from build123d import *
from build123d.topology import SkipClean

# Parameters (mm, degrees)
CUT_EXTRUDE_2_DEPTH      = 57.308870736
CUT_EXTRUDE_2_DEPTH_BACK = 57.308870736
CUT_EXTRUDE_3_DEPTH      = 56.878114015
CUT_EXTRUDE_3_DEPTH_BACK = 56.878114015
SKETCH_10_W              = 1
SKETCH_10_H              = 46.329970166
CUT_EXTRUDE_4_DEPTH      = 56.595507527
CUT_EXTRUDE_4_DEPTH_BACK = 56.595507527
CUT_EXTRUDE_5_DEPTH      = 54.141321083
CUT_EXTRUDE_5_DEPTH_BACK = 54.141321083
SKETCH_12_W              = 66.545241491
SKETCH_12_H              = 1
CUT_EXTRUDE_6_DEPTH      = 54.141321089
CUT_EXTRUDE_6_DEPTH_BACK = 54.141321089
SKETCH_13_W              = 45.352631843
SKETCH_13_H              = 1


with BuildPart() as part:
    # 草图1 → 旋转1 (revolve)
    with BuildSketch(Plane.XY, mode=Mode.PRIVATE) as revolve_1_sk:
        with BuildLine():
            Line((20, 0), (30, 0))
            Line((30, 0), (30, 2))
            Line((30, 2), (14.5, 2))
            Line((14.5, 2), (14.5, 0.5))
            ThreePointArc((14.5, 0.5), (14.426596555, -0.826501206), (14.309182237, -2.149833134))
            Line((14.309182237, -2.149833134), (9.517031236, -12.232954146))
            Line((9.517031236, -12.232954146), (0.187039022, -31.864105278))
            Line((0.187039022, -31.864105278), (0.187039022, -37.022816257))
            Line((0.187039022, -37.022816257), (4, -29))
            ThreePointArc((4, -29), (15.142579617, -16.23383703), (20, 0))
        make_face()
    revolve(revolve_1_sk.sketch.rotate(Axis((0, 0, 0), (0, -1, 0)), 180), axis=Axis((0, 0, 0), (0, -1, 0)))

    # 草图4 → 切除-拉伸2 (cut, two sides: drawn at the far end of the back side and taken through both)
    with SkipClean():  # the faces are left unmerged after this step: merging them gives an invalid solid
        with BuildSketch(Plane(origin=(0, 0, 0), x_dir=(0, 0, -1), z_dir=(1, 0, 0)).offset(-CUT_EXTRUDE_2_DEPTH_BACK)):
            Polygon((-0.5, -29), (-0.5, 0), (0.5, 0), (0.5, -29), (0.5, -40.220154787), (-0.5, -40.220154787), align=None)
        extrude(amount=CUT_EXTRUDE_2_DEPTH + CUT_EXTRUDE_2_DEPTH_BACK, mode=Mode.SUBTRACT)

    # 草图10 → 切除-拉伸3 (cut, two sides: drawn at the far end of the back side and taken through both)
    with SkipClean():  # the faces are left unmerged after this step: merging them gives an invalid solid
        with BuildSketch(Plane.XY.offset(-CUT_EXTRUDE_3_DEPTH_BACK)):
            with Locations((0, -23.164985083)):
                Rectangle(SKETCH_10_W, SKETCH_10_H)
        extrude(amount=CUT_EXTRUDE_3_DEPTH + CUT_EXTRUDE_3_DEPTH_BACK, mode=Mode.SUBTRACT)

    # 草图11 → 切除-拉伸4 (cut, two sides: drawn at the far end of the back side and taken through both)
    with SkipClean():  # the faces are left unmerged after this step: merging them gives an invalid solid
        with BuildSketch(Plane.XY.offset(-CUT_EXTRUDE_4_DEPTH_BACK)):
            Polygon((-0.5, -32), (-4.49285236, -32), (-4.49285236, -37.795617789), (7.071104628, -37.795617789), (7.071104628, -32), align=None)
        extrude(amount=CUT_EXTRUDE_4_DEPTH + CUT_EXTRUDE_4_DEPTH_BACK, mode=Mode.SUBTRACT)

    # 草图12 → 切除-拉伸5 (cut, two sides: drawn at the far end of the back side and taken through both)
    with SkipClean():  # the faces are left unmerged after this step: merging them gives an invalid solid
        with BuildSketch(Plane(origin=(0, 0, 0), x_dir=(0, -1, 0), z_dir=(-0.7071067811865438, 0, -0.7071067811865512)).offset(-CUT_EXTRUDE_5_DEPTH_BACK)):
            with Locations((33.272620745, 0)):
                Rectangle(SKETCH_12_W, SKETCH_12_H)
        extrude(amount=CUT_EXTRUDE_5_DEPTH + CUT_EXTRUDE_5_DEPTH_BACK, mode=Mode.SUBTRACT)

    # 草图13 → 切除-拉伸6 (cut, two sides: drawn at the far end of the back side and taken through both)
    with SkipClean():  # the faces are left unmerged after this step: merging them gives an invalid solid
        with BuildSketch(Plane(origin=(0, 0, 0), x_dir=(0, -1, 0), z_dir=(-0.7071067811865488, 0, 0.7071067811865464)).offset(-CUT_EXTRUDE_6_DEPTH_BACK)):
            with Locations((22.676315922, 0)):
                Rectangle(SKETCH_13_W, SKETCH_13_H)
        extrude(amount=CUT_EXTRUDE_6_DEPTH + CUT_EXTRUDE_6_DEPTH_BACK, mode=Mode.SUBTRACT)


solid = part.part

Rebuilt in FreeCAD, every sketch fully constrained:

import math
import FreeCAD as App
import Part
import Sketcher
from FreeCAD import Vector
Q = App.Units.Quantity


def add_polygon(sketch, points):
    """Adds a closed chain of lines whose ends are joined by coincident constraints."""
    first, n = sketch.GeometryCount, len(points)
    for a, b in zip(points, points[1:] + points[:1]):
        sketch.addGeometry(Part.LineSegment(App.Vector(*a, 0), App.Vector(*b, 0)), False)
    for i in range(n):
        sketch.addConstraint(Sketcher.Constraint("Coincident", first + i, 2, first + (i + 1) % n, 1))

doc = App.newDocument("Part")
params = doc.addObject("Spreadsheet::Sheet", "Params")
for row, (alias, value) in enumerate([
    ("sketch1_radius", "40.000001 mm"),
    ("sketch1_width", "10 mm"),
    ("sketch1_height", "2 mm"),
    ("sketch1_width2", "15.5 mm"),
    ("sketch1_height2", "1.5 mm"),
    ("revolution_angle", "360 deg"),
    ("sketch2_height", "1 mm"),
    ("sketch3_width", "1 mm"),
    ("sketch5_height", "1 mm"),
    ("sketch6_height", "1 mm"),
], start=1):
    params.set(f"A{row}", alias)
    params.set(f"B{row}", "=" + value)
    params.setAlias(f"B{row}", alias)

body = doc.addObject("PartDesign::Body", "Body")

# Sketch on XY plane
sketch1 = doc.addObject("Sketcher::SketchObject", "Sketch")
body.addObject(sketch1)
sketch1.AttachmentSupport = (doc.XY_Plane, [""])
sketch1.MapMode = "FlatFace"
sketch1.addGeometry([
    Part.LineSegment(Vector(20, 0, 0), Vector(30, 0, 0)),  # 0
    Part.LineSegment(Vector(30, 0, 0), Vector(30, 2, 0)),  # 1
    Part.LineSegment(Vector(30, 2, 0), Vector(14.5, 2, 0)),  # 2
    Part.LineSegment(Vector(14.5, 2, 0), Vector(14.5, 0.5, 0)),  # 3
    Part.ArcOfCircle(Part.Circle(Vector(-25.5, 2, 0), Vector(0, 0, 1), 40), math.radians(-6.02), math.radians(-2.22)),  # 4
    Part.LineSegment(Vector(14.3, -2.1, 0), Vector(9.5, -12.2, 0)),  # 5
    Part.LineSegment(Vector(9.5, -12.2, 0), Vector(0.2, -31.9, 0)),  # 6
    Part.LineSegment(Vector(0.2, -31.9, 0), Vector(0.2, -37, 0)),  # 7
    Part.LineSegment(Vector(0.2, -37, 0), Vector(4, -29, 0)),  # 8
    Part.ArcOfCircle(Part.Circle(Vector(-19.9, 3.1, 0), Vector(0, 0, 1), 40), math.radians(-53), math.radians(-4)),  # 9
], False)
sketch1.addConstraint([
    Sketcher.Constraint("Coincident", 0, 2, 1, 1),
    Sketcher.Constraint("Coincident", 1, 2, 2, 1),
    Sketcher.Constraint("Coincident", 2, 2, 3, 1),
    Sketcher.Constraint("Coincident", 3, 2, 4, 2),
    Sketcher.Constraint("Coincident", 4, 1, 5, 1),
    Sketcher.Constraint("Coincident", 5, 2, 6, 1),
    Sketcher.Constraint("Coincident", 6, 2, 7, 1),
    Sketcher.Constraint("Coincident", 7, 2, 8, 1),
    Sketcher.Constraint("Coincident", 8, 2, 9, 1),
    Sketcher.Constraint("Coincident", 9, 2, 0, 1),
    Sketcher.Constraint("Horizontal", 0),
    Sketcher.Constraint("Vertical", 1),
    Sketcher.Constraint("Horizontal", 2),
    Sketcher.Constraint("Vertical", 3),
    Sketcher.Constraint("Vertical", 7),
    Sketcher.Constraint("Equal", 4, 9),
    Sketcher.Constraint("PointOnObject", 0, 2, -1),
    Sketcher.Constraint("Parallel", 5, 6),
    Sketcher.Constraint("Parallel", 6, 8),
    Sketcher.Constraint("Radius", 4, Q("40.000001 mm")),
    Sketcher.Constraint("DistanceX", 0, 1, 0, 2, Q("10 mm")),
    Sketcher.Constraint("DistanceY", 1, 1, 1, 2, Q("2 mm")),
    Sketcher.Constraint("DistanceX", 2, 2, 2, 1, Q("15.5 mm")),
    Sketcher.Constraint("DistanceY", 3, 2, 3, 1, Q("1.5 mm")),
    Sketcher.Constraint("DistanceX", -1, 1, 0, 2, Q("30 mm")),
    Sketcher.Constraint("DistanceX", -1, 1, 8, 2, Q("4 mm")),
    Sketcher.Constraint("DistanceY", 8, 2, -1, 1, Q("29 mm")),
    Sketcher.Constraint("DistanceY", 7, 2, 7, 1, Q("5.158711 mm")),
    Sketcher.Constraint("Distance", 5, Q("11.163962 mm")),
    Sketcher.Constraint("DistanceY", -1, 1, 4, 3, Q("2.046509 mm")),
    Sketcher.Constraint("DistanceX", -1, 1, 5, 2, Q("9.517031 mm")),
    Sketcher.Constraint("DistanceX", -1, 1, 6, 2, Q("0.187039 mm")),
])
sketch1.setExpression("Constraints[19]", "Params.sketch1_radius")
sketch1.setExpression("Constraints[20]", "Params.sketch1_width")
sketch1.setExpression("Constraints[21]", "Params.sketch1_height")
sketch1.setExpression("Constraints[22]", "Params.sketch1_width2")
sketch1.setExpression("Constraints[23]", "Params.sketch1_height2")
revolution = doc.addObject("PartDesign::Revolution", "Revolution")
body.addObject(revolution)
revolution.Profile = sketch1
revolution.ReferenceAxis = (sketch1, ["V_Axis"])
revolution.setExpression("Angle", "Params.revolution_angle")

# Sketch on YZ plane
sketch2 = doc.addObject("Sketcher::SketchObject", "Sketch001")
body.addObject(sketch2)
sketch2.AttachmentSupport = (doc.YZ_Plane, [""])
sketch2.MapMode = "FlatFace"
add_polygon(sketch2, [(0, 0.5), (-40.2, 0.5), (-40.2, -0.5), (0, -0.5)])  # lines 0-3
sketch2.addConstraint([
    Sketcher.Constraint("Horizontal", 0),
    Sketcher.Constraint("Vertical", 1),
    Sketcher.Constraint("Horizontal", 2),
    Sketcher.Constraint("Vertical", 3),
    Sketcher.Constraint("Symmetric", 2, 2, 3, 2, -1, 1),
    Sketcher.Constraint("DistanceY", 1, 2, 1, 1, Q("1 mm")),
    Sketcher.Constraint("DistanceX", 0, 2, 0, 1, Q("40.220155 mm")),
])
sketch2.setExpression("Constraints[9]", "Params.sketch2_height")
pocket1 = doc.addObject("PartDesign::Pocket", "Pocket")
body.addObject(pocket1)
pocket1.Profile = sketch2
pocket1.Type = "ThroughAll"
pocket1.Midplane = True

# Sketch on XY plane
sketch3 = doc.addObject("Sketcher::SketchObject", "Sketch002")
body.addObject(sketch3)
sketch3.AttachmentSupport = (doc.XY_Plane, [""])
sketch3.MapMode = "FlatFace"
add_polygon(sketch3, [(-0.5, 0), (-0.5, -46.3), (0.5, -46.3), (0.5, 0)])  # lines 0-3
sketch3.addConstraint([
    Sketcher.Constraint("Vertical", 0),
    Sketcher.Constraint("Horizontal", 1),
    Sketcher.Constraint("Vertical", 2),
    Sketcher.Constraint("Horizontal", 3),
    Sketcher.Constraint("Symmetric", 2, 2, 3, 2, -1, 1),
    Sketcher.Constraint("DistanceX", 1, 1, 1, 2, Q("1 mm")),
    Sketcher.Constraint("DistanceY", 0, 2, 0, 1, Q("46.32997 mm")),
])
sketch3.setExpression("Constraints[9]", "Params.sketch3_width")
pocket2 = doc.addObject("PartDesign::Pocket", "Pocket001")
body.addObject(pocket2)
pocket2.Profile = sketch3
pocket2.Type = "ThroughAll"
pocket2.Midplane = True

# Sketch on XY plane
sketch4 = doc.addObject("Sketcher::SketchObject", "Sketch003")
body.addObject(sketch4)
sketch4.AttachmentSupport = (doc.XY_Plane, [""])
sketch4.MapMode = "FlatFace"
add_polygon(sketch4, [(-4, -32), (-4, -38), (7, -38), (7, -32)])  # lines 0-3
sketch4.addConstraint([
    Sketcher.Constraint("Vertical", 0),
    Sketcher.Constraint("Horizontal", 1),
    Sketcher.Constraint("Vertical", 2),
    Sketcher.Constraint("Horizontal", 3),
    Sketcher.Constraint("DistanceY", 2, 2, -1, 1, Q("32 mm")),
    Sketcher.Constraint("DistanceX", 1, 1, 1, 2, Q("11.563957 mm")),
    Sketcher.Constraint("DistanceY", 0, 2, 0, 1, Q("5.795618 mm")),
    Sketcher.Constraint("DistanceX", 0, 2, -1, 1, Q("4.492852 mm")),
])
pocket3 = doc.addObject("PartDesign::Pocket", "Pocket002")
body.addObject(pocket3)
pocket3.Profile = sketch4
pocket3.Type = "ThroughAll"
pocket3.Midplane = True

# Sketch on an angled plane
sketch5 = doc.addObject("Sketcher::SketchObject", "Sketch004")
body.addObject(sketch5)
sketch5.Placement = App.Placement(Vector(0, 0, 0), App.Rotation(Vector(0, -1, 0), Vector(-0.707106781, 0, 0.707106781), Vector(-0.707106781, 0, -0.707106781), "ZXY"))
add_polygon(sketch5, [(0, 0.5), (0, -0.5), (66.5, -0.5), (66.5, 0.5)])  # lines 0-3
sketch5.addConstraint([
    Sketcher.Constraint("Vertical", 0),
    Sketcher.Constraint("Horizontal", 1),
    Sketcher.Constraint("Vertical", 2),
    Sketcher.Constraint("Horizontal", 3),
    Sketcher.Constraint("Symmetric", 0, 2, 3, 2, -1, 1),
    Sketcher.Constraint("DistanceY", 0, 2, 0, 1, Q("1 mm")),
    Sketcher.Constraint("DistanceX", 1, 1, 1, 2, Q("66.545241 mm")),
])
sketch5.setExpression("Constraints[9]", "Params.sketch5_height")
pocket4 = doc.addObject("PartDesign::Pocket", "Pocket003")
body.addObject(pocket4)
pocket4.Profile = sketch5
pocket4.Type = "ThroughAll"
pocket4.Midplane = True

# Sketch on an angled plane
sketch6 = doc.addObject("Sketcher::SketchObject", "Sketch005")
body.addObject(sketch6)
sketch6.Placement = App.Placement(Vector(0, 0, 0), App.Rotation(Vector(0, -1, 0), Vector(0.707106781, 0, 0.707106781), Vector(-0.707106781, 0, 0.707106781), "ZXY"))
add_polygon(sketch6, [(0, 0.5), (0, -0.5), (45.4, -0.5), (45.4, 0.5)])  # lines 0-3
sketch6.addConstraint([
    Sketcher.Constraint("Vertical", 0),
    Sketcher.Constraint("Horizontal", 1),
    Sketcher.Constraint("Vertical", 2),
    Sketcher.Constraint("Horizontal", 3),
    Sketcher.Constraint("Symmetric", 0, 2, 3, 2, -1, 1),
    Sketcher.Constraint("DistanceY", 0, 2, 0, 1, Q("1 mm")),
    Sketcher.Constraint("DistanceX", 1, 1, 1, 2, Q("45.352632 mm")),
])
sketch6.setExpression("Constraints[9]", "Params.sketch6_height")
pocket5 = doc.addObject("PartDesign::Pocket", "Pocket004")
body.addObject(pocket5)
pocket5.Profile = sketch6
pocket5.Type = "ThroughAll"
pocket5.Midplane = True

doc.recompute()
